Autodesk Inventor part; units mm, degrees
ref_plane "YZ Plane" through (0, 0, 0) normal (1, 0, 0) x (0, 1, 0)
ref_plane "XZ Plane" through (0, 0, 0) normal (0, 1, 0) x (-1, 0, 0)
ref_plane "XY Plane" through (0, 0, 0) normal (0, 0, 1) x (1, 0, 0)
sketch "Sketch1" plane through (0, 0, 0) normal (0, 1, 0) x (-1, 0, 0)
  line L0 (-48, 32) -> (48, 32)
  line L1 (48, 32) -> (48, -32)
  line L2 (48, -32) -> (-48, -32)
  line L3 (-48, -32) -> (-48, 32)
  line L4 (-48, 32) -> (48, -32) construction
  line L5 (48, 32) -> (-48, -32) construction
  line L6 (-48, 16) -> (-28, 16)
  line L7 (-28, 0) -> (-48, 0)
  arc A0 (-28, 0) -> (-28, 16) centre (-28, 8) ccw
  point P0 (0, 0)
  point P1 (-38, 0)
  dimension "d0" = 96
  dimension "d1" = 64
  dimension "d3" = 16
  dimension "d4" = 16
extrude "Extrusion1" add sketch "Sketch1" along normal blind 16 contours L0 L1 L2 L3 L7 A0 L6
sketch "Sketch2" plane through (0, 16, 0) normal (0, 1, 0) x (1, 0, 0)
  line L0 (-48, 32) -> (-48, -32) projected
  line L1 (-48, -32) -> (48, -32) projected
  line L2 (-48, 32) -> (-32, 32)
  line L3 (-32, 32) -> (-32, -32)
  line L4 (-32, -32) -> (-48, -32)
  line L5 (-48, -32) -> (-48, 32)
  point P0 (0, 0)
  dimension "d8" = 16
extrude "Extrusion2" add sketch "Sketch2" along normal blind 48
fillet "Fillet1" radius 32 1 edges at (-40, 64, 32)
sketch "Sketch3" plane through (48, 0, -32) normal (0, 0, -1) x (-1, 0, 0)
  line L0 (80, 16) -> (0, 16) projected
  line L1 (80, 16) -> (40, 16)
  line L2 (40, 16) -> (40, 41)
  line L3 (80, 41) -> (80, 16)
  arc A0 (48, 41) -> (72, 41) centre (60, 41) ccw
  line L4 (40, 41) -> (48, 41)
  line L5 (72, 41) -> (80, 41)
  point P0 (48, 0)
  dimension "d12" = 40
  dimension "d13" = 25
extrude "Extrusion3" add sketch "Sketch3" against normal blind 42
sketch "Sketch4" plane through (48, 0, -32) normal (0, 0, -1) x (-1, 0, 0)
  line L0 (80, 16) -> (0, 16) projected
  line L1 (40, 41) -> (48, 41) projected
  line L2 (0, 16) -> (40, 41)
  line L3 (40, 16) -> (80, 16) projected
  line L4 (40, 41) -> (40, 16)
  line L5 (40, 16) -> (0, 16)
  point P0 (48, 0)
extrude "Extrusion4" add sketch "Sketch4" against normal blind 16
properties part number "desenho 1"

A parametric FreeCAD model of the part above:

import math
import FreeCAD as App
import Part
import Sketcher
from FreeCAD import Vector
Q = App.Units.Quantity


def edges_at(feature, points):
    """Names of the edges that pass closest to the given points."""
    edges = feature.Shape.Edges
    near = lambda p: min(range(len(edges)), key=lambda i: edges[i].distToShape(Part.Vertex(*p))[0])
    return sorted({f"Edge{near(p) + 1}" for p in points})


def add_polygon(sketch, points):
    """Adds a closed chain of lines whose ends are joined by coincident constraints."""
    first, n = sketch.GeometryCount, len(points)
    for a, b in zip(points, points[1:] + points[:1]):
        sketch.addGeometry(Part.LineSegment(App.Vector(*a, 0), App.Vector(*b, 0)), False)
    for i in range(n):
        sketch.addConstraint(Sketcher.Constraint("Coincident", first + i, 2, first + (i + 1) % n, 1))

doc = App.newDocument("Part")
body = doc.addObject("PartDesign::Body", "Body")

sketch1 = body.newObject("Sketcher::SketchObject", "Sketch")
sketch1.AttachmentSupport = (doc.getObject("XZ_Plane"), [""])
sketch1.MapMode = "FlatFace"
sketch1.addGeometry(Part.LineSegment(Vector(-48, 32, 0), Vector(48, 32, 0)), False)
sketch1.addGeometry(Part.LineSegment(Vector(48, 32, 0), Vector(48, 16, 0)), False)
sketch1.addGeometry(Part.LineSegment(Vector(48, 16, 0), Vector(28, 16, 0)), False)
sketch1.addGeometry(Part.ArcOfCircle(Part.Circle(Vector(28, 8, 0), Vector(0, 0, 1), 8), math.radians(90), math.radians(270)), False)
sketch1.addGeometry(Part.LineSegment(Vector(28, 0, 0), Vector(48, 0, 0)), False)
sketch1.addGeometry(Part.LineSegment(Vector(48, 0, 0), Vector(48, -32, 0)), False)
sketch1.addGeometry(Part.LineSegment(Vector(48, -32, 0), Vector(-48, -32, 0)), False)
sketch1.addGeometry(Part.LineSegment(Vector(-48, -32, 0), Vector(-48, 32, 0)), False)
sketch1.addConstraint(Sketcher.Constraint("Coincident", 0, 2, 1, 1))
sketch1.addConstraint(Sketcher.Constraint("Coincident", 1, 2, 2, 1))
sketch1.addConstraint(Sketcher.Constraint("Tangent", 2, 2, 3, 1))
sketch1.addConstraint(Sketcher.Constraint("Tangent", 3, 2, 4, 1))
sketch1.addConstraint(Sketcher.Constraint("Coincident", 4, 2, 5, 1))
sketch1.addConstraint(Sketcher.Constraint("Coincident", 5, 2, 6, 1))
sketch1.addConstraint(Sketcher.Constraint("Coincident", 6, 2, 7, 1))
sketch1.addConstraint(Sketcher.Constraint("Coincident", 7, 2, 0, 1))
sketch1.addConstraint(Sketcher.Constraint("Horizontal", 0))
sketch1.addConstraint(Sketcher.Constraint("Vertical", 1))
sketch1.addConstraint(Sketcher.Constraint("Horizontal", 2))
sketch1.addConstraint(Sketcher.Constraint("Horizontal", 4))
sketch1.addConstraint(Sketcher.Constraint("Vertical", 5))
sketch1.addConstraint(Sketcher.Constraint("Horizontal", 6))
sketch1.addConstraint(Sketcher.Constraint("Vertical", 7))
sketch1.addConstraint(Sketcher.Constraint("Symmetric", 0, 2, 6, 2, -1, 1))
sketch1.addConstraint(Sketcher.Constraint("PointOnObject", 3, 2, -1))
sketch1.addConstraint(Sketcher.Constraint("Vertical", 1, 2, 4, 2))
sketch1.addConstraint(Sketcher.Constraint("Radius", 3, Q("8 mm")))
sketch1.addConstraint(Sketcher.Constraint("DistanceX", 0, 1, 0, 2, Q("96 mm")))
sketch1.addConstraint(Sketcher.Constraint("DistanceY", 1, 2, 1, 1, Q("16 mm")))
sketch1.addConstraint(Sketcher.Constraint("DistanceX", 2, 2, 2, 1, Q("20 mm")))
pad1 = body.newObject("PartDesign::Pad", "Pad")
pad1.Profile = sketch1
pad1.Length = 16
pad1.Reversed = True

sketch2 = body.newObject("Sketcher::SketchObject", "Sketch001")
sketch2.AttachmentSupport = (doc.getObject("XZ_Plane"), [""])
sketch2.MapMode = "FlatFace"
sketch2.AttachmentOffset = App.Placement(Vector(0, 0, -16), App.Rotation())
add_polygon(sketch2, [(-32, -32), (-48, -32), (-48, 32), (-32, 32)])
sketch2.addConstraint(Sketcher.Constraint("Horizontal", 0))
sketch2.addConstraint(Sketcher.Constraint("Vertical", 1))
sketch2.addConstraint(Sketcher.Constraint("Horizontal", 2))
sketch2.addConstraint(Sketcher.Constraint("Vertical", 3))
sketch2.addConstraint(Sketcher.Constraint("DistanceX", 0, 2, 0, 1, Q("16 mm")))
sketch2.addConstraint(Sketcher.Constraint("DistanceY", 1, 1, 1, 2, Q("64 mm")))
sketch2.addConstraint(Sketcher.Constraint("DistanceX", 0, 2, -1, 1, Q("48 mm")))
sketch2.addConstraint(Sketcher.Constraint("DistanceY", 0, 2, -1, 1, Q("32 mm")))
pad2 = body.newObject("PartDesign::Pad", "Pad001")
pad2.Profile = sketch2
pad2.Length = 48
pad2.Reversed = True
doc.recompute()

fillet = body.newObject("PartDesign::Fillet", "Fillet")
fillet.Base = (pad2, edges_at(pad2, [(-40, 64, 32)]))
fillet.Radius = 32

sketch3 = body.newObject("Sketcher::SketchObject", "Sketch002")
sketch3.AttachmentSupport = (doc.getObject("XY_Plane"), [""])
sketch3.MapMode = "FlatFace"
sketch3.AttachmentOffset = App.Placement(Vector(0, 0, -32), App.Rotation())
sketch3.addGeometry(Part.LineSegment(Vector(8, 16, 0), Vector(-32, 16, 0)), False)
sketch3.addGeometry(Part.LineSegment(Vector(-32, 16, 0), Vector(-32, 41, 0)), False)
sketch3.addGeometry(Part.LineSegment(Vector(-32, 41, 0), Vector(-24, 41, 0)), False)
sketch3.addGeometry(Part.ArcOfCircle(Part.Circle(Vector(-12, 41, 0), Vector(0, 0, 1), 12), math.radians(180), math.radians(360)), False)
sketch3.addGeometry(Part.LineSegment(Vector(0, 41, 0), Vector(8, 41, 0)), False)
sketch3.addGeometry(Part.LineSegment(Vector(8, 41, 0), Vector(8, 16, 0)), False)
sketch3.addConstraint(Sketcher.Constraint("Coincident", 0, 2, 1, 1))
sketch3.addConstraint(Sketcher.Constraint("Coincident", 1, 2, 2, 1))
sketch3.addConstraint(Sketcher.Constraint("Coincident", 2, 2, 3, 1))
sketch3.addConstraint(Sketcher.Constraint("Coincident", 3, 2, 4, 1))
sketch3.addConstraint(Sketcher.Constraint("Coincident", 4, 2, 5, 1))
sketch3.addConstraint(Sketcher.Constraint("Coincident", 5, 2, 0, 1))
sketch3.addConstraint(Sketcher.Constraint("Horizontal", 0))
sketch3.addConstraint(Sketcher.Constraint("Vertical", 1))
sketch3.addConstraint(Sketcher.Constraint("Horizontal", 2))
sketch3.addConstraint(Sketcher.Constraint("Horizontal", 4))
sketch3.addConstraint(Sketcher.Constraint("Vertical", 5))
sketch3.addConstraint(Sketcher.Constraint("PointOnObject", 3, 2, -2))
sketch3.addConstraint(Sketcher.Constraint("Horizontal", 3, 3, 1, 2))
sketch3.addConstraint(Sketcher.Constraint("Horizontal", 2, 2, 3, 2))
sketch3.addConstraint(Sketcher.Constraint("Equal", 2, 4))
sketch3.addConstraint(Sketcher.Constraint("DistanceX", 0, 2, 0, 1, Q("40 mm")))
sketch3.addConstraint(Sketcher.Constraint("DistanceY", 1, 1, 1, 2, Q("25 mm")))
sketch3.addConstraint(Sketcher.Constraint("Radius", 3, Q("12 mm")))
sketch3.addConstraint(Sketcher.Constraint("DistanceY", -1, 1, 3, 3, Q("41 mm")))
pad3 = body.newObject("PartDesign::Pad", "Pad002")
pad3.Profile = sketch3
pad3.Length = 42

sketch4 = body.newObject("Sketcher::SketchObject", "Sketch003")
sketch4.AttachmentSupport = (doc.getObject("XY_Plane"), [""])
sketch4.MapMode = "FlatFace"
sketch4.AttachmentOffset = App.Placement(Vector(0, 0, -32), App.Rotation())
add_polygon(sketch4, [(48, 16), (8, 16), (8, 41)])
sketch4.addConstraint(Sketcher.Constraint("Horizontal", 0))
sketch4.addConstraint(Sketcher.Constraint("Vertical", 1))
sketch4.addConstraint(Sketcher.Constraint("DistanceX", 0, 2, 0, 1, Q("40 mm")))
sketch4.addConstraint(Sketcher.Constraint("DistanceY", 1, 1, 1, 2, Q("25 mm")))
sketch4.addConstraint(Sketcher.Constraint("DistanceX", -1, 1, 0, 2, Q("8 mm")))
sketch4.addConstraint(Sketcher.Constraint("DistanceY", -1, 1, 0, 2, Q("16 mm")))
pad4 = body.newObject("PartDesign::Pad", "Pad003")
pad4.Profile = sketch4
pad4.Length = 16

doc.recompute()
